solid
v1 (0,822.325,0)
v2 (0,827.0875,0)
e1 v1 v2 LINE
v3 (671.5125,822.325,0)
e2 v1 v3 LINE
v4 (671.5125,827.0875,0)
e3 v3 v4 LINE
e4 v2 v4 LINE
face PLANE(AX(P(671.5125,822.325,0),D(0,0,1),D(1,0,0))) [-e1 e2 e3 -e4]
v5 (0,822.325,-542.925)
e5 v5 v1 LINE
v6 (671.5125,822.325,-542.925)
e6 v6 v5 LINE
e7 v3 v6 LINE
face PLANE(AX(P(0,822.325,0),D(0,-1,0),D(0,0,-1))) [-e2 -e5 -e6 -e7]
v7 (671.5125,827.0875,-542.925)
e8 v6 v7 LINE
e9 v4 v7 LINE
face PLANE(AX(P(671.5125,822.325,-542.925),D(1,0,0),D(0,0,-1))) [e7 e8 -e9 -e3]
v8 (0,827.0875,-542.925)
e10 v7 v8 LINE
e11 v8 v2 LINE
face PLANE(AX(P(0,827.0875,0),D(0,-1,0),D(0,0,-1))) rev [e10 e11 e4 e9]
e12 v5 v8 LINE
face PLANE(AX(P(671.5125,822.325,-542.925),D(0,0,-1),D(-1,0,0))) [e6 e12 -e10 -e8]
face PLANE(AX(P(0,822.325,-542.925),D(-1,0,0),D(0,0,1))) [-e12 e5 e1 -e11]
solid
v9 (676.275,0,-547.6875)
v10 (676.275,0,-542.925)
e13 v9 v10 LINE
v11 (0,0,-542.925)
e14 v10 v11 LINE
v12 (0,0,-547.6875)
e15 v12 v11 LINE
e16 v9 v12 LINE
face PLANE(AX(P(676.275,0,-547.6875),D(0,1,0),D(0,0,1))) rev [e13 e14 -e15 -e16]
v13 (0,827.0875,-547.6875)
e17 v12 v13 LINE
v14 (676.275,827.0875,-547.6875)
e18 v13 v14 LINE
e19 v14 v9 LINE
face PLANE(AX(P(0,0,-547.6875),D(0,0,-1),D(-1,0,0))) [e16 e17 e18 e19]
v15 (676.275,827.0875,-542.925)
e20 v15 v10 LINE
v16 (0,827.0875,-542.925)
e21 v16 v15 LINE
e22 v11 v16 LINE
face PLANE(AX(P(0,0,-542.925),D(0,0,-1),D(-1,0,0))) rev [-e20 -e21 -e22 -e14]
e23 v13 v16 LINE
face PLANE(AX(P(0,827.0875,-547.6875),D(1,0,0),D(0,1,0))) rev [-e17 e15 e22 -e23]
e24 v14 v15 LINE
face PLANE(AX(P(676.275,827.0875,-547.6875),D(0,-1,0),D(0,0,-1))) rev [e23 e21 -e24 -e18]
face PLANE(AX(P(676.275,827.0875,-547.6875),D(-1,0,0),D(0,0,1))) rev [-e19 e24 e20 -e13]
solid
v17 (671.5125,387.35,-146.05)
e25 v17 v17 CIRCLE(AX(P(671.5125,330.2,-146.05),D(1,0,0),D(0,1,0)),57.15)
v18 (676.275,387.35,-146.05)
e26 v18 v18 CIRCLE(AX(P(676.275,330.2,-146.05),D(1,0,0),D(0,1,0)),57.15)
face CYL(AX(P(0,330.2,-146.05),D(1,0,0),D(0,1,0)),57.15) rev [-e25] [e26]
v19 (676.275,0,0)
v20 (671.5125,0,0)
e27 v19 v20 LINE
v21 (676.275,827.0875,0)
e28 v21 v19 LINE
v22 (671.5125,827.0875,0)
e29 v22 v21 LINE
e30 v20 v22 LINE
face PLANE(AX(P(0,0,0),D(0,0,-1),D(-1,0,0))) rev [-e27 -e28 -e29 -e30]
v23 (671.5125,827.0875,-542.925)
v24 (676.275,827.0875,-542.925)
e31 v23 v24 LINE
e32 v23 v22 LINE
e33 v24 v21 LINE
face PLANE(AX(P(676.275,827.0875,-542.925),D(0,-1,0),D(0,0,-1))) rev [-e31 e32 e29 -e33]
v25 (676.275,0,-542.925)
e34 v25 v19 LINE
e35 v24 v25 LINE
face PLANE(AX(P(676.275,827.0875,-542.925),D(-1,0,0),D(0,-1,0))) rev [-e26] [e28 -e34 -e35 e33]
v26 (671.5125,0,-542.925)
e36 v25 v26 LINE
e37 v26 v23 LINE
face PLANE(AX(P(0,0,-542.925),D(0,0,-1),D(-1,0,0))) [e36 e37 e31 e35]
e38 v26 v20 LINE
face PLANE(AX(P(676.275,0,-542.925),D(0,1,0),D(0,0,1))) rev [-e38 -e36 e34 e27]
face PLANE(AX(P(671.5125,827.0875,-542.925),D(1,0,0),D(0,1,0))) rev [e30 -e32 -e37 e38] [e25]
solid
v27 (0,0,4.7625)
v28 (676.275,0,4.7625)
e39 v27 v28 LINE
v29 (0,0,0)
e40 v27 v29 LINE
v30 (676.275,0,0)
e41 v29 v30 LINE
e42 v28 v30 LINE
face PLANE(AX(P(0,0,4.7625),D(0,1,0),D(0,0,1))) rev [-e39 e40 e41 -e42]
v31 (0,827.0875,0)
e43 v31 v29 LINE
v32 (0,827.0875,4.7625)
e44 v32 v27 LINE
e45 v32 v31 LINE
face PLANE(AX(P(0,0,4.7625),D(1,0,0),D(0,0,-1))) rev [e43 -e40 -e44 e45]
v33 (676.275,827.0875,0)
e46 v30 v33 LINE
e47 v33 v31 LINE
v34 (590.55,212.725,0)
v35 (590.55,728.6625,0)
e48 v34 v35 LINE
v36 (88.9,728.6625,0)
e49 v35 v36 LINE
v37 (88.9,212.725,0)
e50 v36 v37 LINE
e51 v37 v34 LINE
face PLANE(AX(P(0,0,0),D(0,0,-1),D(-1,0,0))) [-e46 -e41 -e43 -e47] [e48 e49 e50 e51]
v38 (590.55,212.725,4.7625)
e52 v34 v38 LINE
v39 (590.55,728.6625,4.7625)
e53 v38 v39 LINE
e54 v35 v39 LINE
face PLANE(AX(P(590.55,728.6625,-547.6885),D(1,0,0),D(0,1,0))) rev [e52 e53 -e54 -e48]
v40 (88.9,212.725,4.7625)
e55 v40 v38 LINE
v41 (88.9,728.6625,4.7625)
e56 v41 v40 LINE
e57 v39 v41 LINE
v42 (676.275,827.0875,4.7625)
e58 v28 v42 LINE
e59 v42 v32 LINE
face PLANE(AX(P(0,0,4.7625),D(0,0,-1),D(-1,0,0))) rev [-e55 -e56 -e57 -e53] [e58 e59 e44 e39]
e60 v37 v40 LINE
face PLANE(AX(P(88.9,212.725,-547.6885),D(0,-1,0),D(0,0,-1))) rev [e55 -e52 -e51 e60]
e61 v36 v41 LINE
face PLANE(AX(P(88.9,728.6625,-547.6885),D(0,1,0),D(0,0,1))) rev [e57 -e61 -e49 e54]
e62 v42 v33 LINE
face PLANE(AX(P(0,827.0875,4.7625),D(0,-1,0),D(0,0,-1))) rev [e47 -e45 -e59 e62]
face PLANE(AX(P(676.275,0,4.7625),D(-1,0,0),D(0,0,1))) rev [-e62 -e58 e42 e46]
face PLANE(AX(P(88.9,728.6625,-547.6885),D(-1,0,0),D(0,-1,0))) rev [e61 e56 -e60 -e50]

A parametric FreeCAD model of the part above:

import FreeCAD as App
import Part
import Sketcher
from FreeCAD import Vector
Q = App.Units.Quantity


def add_polygon(sketch, points):
    """Adds a closed chain of lines whose ends are joined by coincident constraints."""
    first, n = sketch.GeometryCount, len(points)
    for a, b in zip(points, points[1:] + points[:1]):
        sketch.addGeometry(Part.LineSegment(App.Vector(*a, 0), App.Vector(*b, 0)), False)
    for i in range(n):
        sketch.addConstraint(Sketcher.Constraint("Coincident", first + i, 2, first + (i + 1) % n, 1))

doc = App.newDocument("Part")
body = doc.addObject("PartDesign::Body", "Body")

# Sketch on XY plane
sketch1 = body.newObject("Sketcher::SketchObject", "Sketch")
sketch1.AttachmentSupport = (doc.getObject("XY_Plane"), [""])
sketch1.MapMode = "FlatFace"
add_polygon(sketch1, [(0, 827), (0, 0), (676, 0), (676, 827)])  # lines 0-3
sketch1.addConstraint(Sketcher.Constraint("Vertical", 0))
sketch1.addConstraint(Sketcher.Constraint("Horizontal", 1))
sketch1.addConstraint(Sketcher.Constraint("Vertical", 2))
sketch1.addConstraint(Sketcher.Constraint("Horizontal", 3))
sketch1.addConstraint(Sketcher.Constraint("Coincident", 0, 2, -1, 1))
sketch1.addConstraint(Sketcher.Constraint("DistanceX", 1, 1, 1, 2, Q("26.625 in")))
sketch1.addConstraint(Sketcher.Constraint("DistanceY", 0, 2, 0, 1, Q("32.5625 in")))
pad1 = body.newObject("PartDesign::Pad", "Pad")
pad1.Profile = sketch1
pad1.Length = Q("0.1875 in")

# Sketch on XY plane
sketch2 = body.newObject("Sketcher::SketchObject", "Sketch001")
sketch2.AttachmentSupport = (doc.getObject("XY_Plane"), [""])
sketch2.MapMode = "FlatFace"
sketch2.AttachmentOffset = App.Placement(Vector(0, 0, 0.1875 * 25.4), App.Rotation())
add_polygon(sketch2, [(89, 729), (89, 213), (591, 213), (591, 729)])  # lines 0-3
sketch2.addConstraint(Sketcher.Constraint("Vertical", 0))
sketch2.addConstraint(Sketcher.Constraint("Horizontal", 1))
sketch2.addConstraint(Sketcher.Constraint("Vertical", 2))
sketch2.addConstraint(Sketcher.Constraint("Horizontal", 3))
sketch2.addConstraint(Sketcher.Constraint("DistanceX", 1, 1, 1, 2, Q("19.75 in")))
sketch2.addConstraint(Sketcher.Constraint("DistanceX", -1, 1, 0, 2, Q("3.5 in")))
sketch2.addConstraint(Sketcher.Constraint("DistanceY", 0, 2, 0, 1, Q("20.3125 in")))
sketch2.addConstraint(Sketcher.Constraint("DistanceY", -1, 1, 0, 2, Q("8.375 in")))
pocket1 = body.newObject("PartDesign::Pocket", "Pocket")
pocket1.Profile = sketch2
pocket1.Length = Q("0.1875 in")
body2 = doc.addObject("PartDesign::Body", "Body001")

# Sketch on XY plane
sketch3 = body2.newObject("Sketcher::SketchObject", "Sketch002")
sketch3.AttachmentSupport = (doc.getObject("XY_Plane001"), [""])
sketch3.MapMode = "FlatFace"
add_polygon(sketch3, [(676.3, 827.1), (676.3, 0), (671.5, 0), (671.5, 827.1)])  # lines 0-3
sketch3.addConstraint(Sketcher.Constraint("Vertical", 0))
sketch3.addConstraint(Sketcher.Constraint("Horizontal", 1))
sketch3.addConstraint(Sketcher.Constraint("Vertical", 2))
sketch3.addConstraint(Sketcher.Constraint("Horizontal", 3))
sketch3.addConstraint(Sketcher.Constraint("PointOnObject", 0, 2, -1))
sketch3.addConstraint(Sketcher.Constraint("DistanceX", 1, 2, 1, 1, Q("0.1875 in")))
sketch3.addConstraint(Sketcher.Constraint("DistanceY", 0, 2, 0, 1, Q("32.5625 in")))
sketch3.addConstraint(Sketcher.Constraint("DistanceX", -1, 1, 0, 2, Q("26.625 in")))
pad2 = body2.newObject("PartDesign::Pad", "Pad001")
pad2.Profile = sketch3
pad2.Length = Q("21.375 in")
pad2.Reversed = True

# Sketch on YZ plane
sketch4 = body2.newObject("Sketcher::SketchObject", "Sketch003")
sketch4.AttachmentSupport = (doc.getObject("YZ_Plane001"), [""])
sketch4.MapMode = "FlatFace"
sketch4.AttachmentOffset = App.Placement(Vector(0, 0, 26.625 * 25.4), App.Rotation())
sketch4.addGeometry(Part.Circle(Vector(330, -146, 0), Vector(0, 0, 1), 57), False)
sketch4.addConstraint(Sketcher.Constraint("Diameter", 0, Q("4.5 in")))
sketch4.addConstraint(Sketcher.Constraint("DistanceX", -1, 1, 0, 3, Q("13 in")))
sketch4.addConstraint(Sketcher.Constraint("DistanceY", 0, 3, -1, 1, Q("5.75 in")))
pocket2 = body2.newObject("PartDesign::Pocket", "Pocket001")
pocket2.Profile = sketch4
pocket2.Type = "ThroughAll"
body3 = doc.addObject("PartDesign::Body", "Body002")

# Sketch on XY plane
sketch5 = body3.newObject("Sketcher::SketchObject", "Sketch004")
sketch5.AttachmentSupport = (doc.getObject("XY_Plane002"), [""])
sketch5.MapMode = "FlatFace"
sketch5.AttachmentOffset = App.Placement(Vector(0, 0, -21.375 * 25.4), App.Rotation())
add_polygon(sketch5, [(676, 827), (676, 0), (0, 0), (0, 827)])  # lines 0-3
sketch5.addConstraint(Sketcher.Constraint("Vertical", 0))
sketch5.addConstraint(Sketcher.Constraint("Horizontal", 1))
sketch5.addConstraint(Sketcher.Constraint("Vertical", 2))
sketch5.addConstraint(Sketcher.Constraint("Horizontal", 3))
sketch5.addConstraint(Sketcher.Constraint("Coincident", 1, 2, -1, 1))
sketch5.addConstraint(Sketcher.Constraint("DistanceX", 1, 2, 1, 1, Q("26.625 in")))
sketch5.addConstraint(Sketcher.Constraint("DistanceY", 0, 2, 0, 1, Q("32.5625 in")))
pad3 = body3.newObject("PartDesign::Pad", "Pad002")
pad3.Profile = sketch5
pad3.Length = Q("0.1875 in")
pad3.Reversed = True
body4 = doc.addObject("PartDesign::Body", "Body003")

# Sketch on XZ plane
sketch6 = body4.newObject("Sketcher::SketchObject", "Sketch005")
sketch6.AttachmentSupport = (doc.getObject("XZ_Plane003"), [""])
sketch6.MapMode = "FlatFace"
sketch6.AttachmentOffset = App.Placement(Vector(0, 0, -32.5625 * 25.4), App.Rotation())
add_polygon(sketch6, [(0, -543), (0, 0), (672, 0), (672, -543)])  # lines 0-3
sketch6.addConstraint(Sketcher.Constraint("Vertical", 0))
sketch6.addConstraint(Sketcher.Constraint("Horizontal", 1))
sketch6.addConstraint(Sketcher.Constraint("Vertical", 2))
sketch6.addConstraint(Sketcher.Constraint("Horizontal", 3))
sketch6.addConstraint(Sketcher.Constraint("Coincident", 0, 2, -1, 1))
sketch6.addConstraint(Sketcher.Constraint("DistanceX", 1, 1, 1, 2, Q("26.4375 in")))
sketch6.addConstraint(Sketcher.Constraint("DistanceY", 0, 1, 0, 2, Q("21.375 in")))
pad4 = body4.newObject("PartDesign::Pad", "Pad003")
pad4.Profile = sketch6
pad4.Length = Q("0.1875 in")

doc.recompute()
